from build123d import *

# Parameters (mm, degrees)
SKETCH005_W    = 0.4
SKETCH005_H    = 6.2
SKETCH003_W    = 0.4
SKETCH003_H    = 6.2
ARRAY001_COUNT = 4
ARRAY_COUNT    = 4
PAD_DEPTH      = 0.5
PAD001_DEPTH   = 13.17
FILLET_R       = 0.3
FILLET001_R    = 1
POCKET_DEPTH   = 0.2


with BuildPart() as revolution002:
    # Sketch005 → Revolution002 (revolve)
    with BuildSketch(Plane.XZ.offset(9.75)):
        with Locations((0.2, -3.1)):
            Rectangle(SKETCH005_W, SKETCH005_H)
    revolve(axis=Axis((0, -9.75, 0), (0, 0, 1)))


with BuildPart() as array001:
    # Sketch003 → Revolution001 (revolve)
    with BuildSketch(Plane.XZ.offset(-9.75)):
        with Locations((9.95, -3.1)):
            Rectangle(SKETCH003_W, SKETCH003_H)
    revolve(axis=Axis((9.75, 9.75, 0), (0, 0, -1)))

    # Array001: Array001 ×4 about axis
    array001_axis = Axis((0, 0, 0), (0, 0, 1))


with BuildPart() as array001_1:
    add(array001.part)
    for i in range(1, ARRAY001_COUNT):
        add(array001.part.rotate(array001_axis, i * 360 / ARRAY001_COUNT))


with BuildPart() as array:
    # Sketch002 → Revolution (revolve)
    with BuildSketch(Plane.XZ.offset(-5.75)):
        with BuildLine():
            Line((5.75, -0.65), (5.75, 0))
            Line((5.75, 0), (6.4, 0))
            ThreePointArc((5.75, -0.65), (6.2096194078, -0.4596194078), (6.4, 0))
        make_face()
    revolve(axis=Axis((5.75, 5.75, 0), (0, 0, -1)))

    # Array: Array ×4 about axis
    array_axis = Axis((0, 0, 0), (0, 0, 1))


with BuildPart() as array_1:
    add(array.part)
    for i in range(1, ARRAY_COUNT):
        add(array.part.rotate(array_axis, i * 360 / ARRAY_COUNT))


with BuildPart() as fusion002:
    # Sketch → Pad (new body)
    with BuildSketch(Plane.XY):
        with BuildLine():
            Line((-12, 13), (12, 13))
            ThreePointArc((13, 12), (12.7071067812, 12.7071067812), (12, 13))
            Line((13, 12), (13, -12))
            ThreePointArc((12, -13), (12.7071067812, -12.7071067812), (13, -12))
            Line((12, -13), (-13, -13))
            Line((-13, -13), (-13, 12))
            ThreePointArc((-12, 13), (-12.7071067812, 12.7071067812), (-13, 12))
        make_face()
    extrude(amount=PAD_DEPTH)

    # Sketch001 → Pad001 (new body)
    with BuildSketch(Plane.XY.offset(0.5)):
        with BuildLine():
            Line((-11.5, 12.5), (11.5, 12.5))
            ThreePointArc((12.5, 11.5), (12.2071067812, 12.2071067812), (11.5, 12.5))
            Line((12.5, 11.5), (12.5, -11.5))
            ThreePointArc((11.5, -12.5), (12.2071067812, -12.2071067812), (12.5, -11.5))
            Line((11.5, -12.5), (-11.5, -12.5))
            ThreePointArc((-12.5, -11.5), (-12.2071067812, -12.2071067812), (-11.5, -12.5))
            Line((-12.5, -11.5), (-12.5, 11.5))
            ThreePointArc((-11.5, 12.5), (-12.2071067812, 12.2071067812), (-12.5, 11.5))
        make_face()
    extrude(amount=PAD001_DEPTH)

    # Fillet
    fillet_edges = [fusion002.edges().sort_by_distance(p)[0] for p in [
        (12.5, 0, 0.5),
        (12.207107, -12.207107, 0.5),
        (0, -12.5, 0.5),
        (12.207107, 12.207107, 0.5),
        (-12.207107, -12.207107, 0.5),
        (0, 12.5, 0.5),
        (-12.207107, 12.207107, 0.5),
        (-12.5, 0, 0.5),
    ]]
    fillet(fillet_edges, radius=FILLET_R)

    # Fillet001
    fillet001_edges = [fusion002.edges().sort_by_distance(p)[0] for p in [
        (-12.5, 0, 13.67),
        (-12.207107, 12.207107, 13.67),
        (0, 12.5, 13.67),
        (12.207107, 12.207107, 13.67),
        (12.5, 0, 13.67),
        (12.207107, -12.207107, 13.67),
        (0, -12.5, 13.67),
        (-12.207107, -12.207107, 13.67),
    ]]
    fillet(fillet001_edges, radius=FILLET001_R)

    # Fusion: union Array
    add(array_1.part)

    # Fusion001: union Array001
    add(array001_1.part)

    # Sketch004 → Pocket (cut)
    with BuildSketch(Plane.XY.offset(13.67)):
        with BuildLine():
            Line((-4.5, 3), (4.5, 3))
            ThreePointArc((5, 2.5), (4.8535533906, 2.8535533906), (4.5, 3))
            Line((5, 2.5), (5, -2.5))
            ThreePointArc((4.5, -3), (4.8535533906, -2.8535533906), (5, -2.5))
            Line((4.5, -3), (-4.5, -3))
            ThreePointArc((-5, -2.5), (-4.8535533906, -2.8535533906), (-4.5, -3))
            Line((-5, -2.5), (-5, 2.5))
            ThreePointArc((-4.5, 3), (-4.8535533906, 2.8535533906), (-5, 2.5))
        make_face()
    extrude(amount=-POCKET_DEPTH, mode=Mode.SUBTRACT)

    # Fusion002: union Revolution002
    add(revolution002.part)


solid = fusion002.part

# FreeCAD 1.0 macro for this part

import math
import FreeCAD as App
import Part
import Sketcher

V = App.Vector
Q = App.Units.Quantity


def edges_at(feature, points):
    """Names of the edges that pass closest to the given points."""
    edges = feature.Shape.Edges
    near = lambda p: min(range(len(edges)), key=lambda i: edges[i].distToShape(Part.Vertex(*p))[0])
    return sorted({f"Edge{near(p) + 1}" for p in points})

doc = App.newDocument("Part")
body = doc.addObject("PartDesign::Body", "Body")

# Sketch on XZ plane
sketch1 = body.newObject("Sketcher::SketchObject", "Sketch")
sketch1.AttachmentSupport = (doc.getObject("XZ_Plane"), [""])
sketch1.MapMode = "FlatFace"
sketch1.AttachmentOffset = App.Placement(V(0, 0, 9.75), App.Rotation())
sketch1.addGeometry(Part.LineSegment(V(0, 0, 0), V(0, -6.2, 0)), False)
sketch1.addGeometry(Part.LineSegment(V(0, -6.2, 0), V(0.4, -6.2, 0)), False)
sketch1.addGeometry(Part.LineSegment(V(0.4, -6.2, 0), V(0.4, 0, 0)), False)
sketch1.addGeometry(Part.LineSegment(V(0.4, 0, 0), V(0, 0, 0)), False)
sketch1.addConstraint(Sketcher.Constraint("Coincident", 0, 2, 1, 1))
sketch1.addConstraint(Sketcher.Constraint("Coincident", 1, 2, 2, 1))
sketch1.addConstraint(Sketcher.Constraint("Coincident", 2, 2, 3, 1))
sketch1.addConstraint(Sketcher.Constraint("Coincident", 3, 2, 0, 1))
sketch1.addConstraint(Sketcher.Constraint("Vertical", 0))
sketch1.addConstraint(Sketcher.Constraint("Horizontal", 1))
sketch1.addConstraint(Sketcher.Constraint("Vertical", 2))
sketch1.addConstraint(Sketcher.Constraint("Horizontal", 3))
sketch1.addConstraint(Sketcher.Constraint("Coincident", 3, 2, -1, 1))
sketch1.addConstraint(Sketcher.Constraint("DistanceX", 1, 1, 1, 2, Q("0.4 mm")))
sketch1.addConstraint(Sketcher.Constraint("DistanceY", 0, 2, 0, 1, Q("6.2 mm")))
revolution = body.newObject("PartDesign::Revolution", "Revolution")
revolution.Profile = sketch1
revolution.ReferenceAxis = (sketch1, ["V_Axis"])
revolution.Angle = 360
body2 = doc.addObject("PartDesign::Body", "Body001")

# Sketch on XZ plane
sketch2 = body2.newObject("Sketcher::SketchObject", "Sketch001")
sketch2.AttachmentSupport = (doc.getObject("XZ_Plane001"), [""])
sketch2.MapMode = "FlatFace"
sketch2.AttachmentOffset = App.Placement(V(0, 0, -9.75), App.Rotation())
sketch2.addGeometry(Part.LineSegment(V(9.75, 0, 0), V(9.75, -6.2, 0)), False)
sketch2.addGeometry(Part.LineSegment(V(9.75, -6.2, 0), V(10.15, -6.2, 0)), False)
sketch2.addGeometry(Part.LineSegment(V(10.15, -6.2, 0), V(10.15, 0, 0)), False)
sketch2.addGeometry(Part.LineSegment(V(10.15, 0, 0), V(9.75, 0, 0)), False)
sketch2.addGeometry(Part.LineSegment(V(9.75, 0, 0), V(9.75, -6.2, 0)), True)  # axis
sketch2.addConstraint(Sketcher.Constraint("Coincident", 0, 2, 1, 1))
sketch2.addConstraint(Sketcher.Constraint("Coincident", 1, 2, 2, 1))
sketch2.addConstraint(Sketcher.Constraint("Coincident", 2, 2, 3, 1))
sketch2.addConstraint(Sketcher.Constraint("Coincident", 3, 2, 0, 1))
sketch2.addConstraint(Sketcher.Constraint("Vertical", 0))
sketch2.addConstraint(Sketcher.Constraint("Horizontal", 1))
sketch2.addConstraint(Sketcher.Constraint("Vertical", 2))
sketch2.addConstraint(Sketcher.Constraint("Horizontal", 3))
sketch2.addConstraint(Sketcher.Constraint("Vertical", 4))
sketch2.addConstraint(Sketcher.Constraint("Coincident", 4, 1, 3, 2))
sketch2.addConstraint(Sketcher.Constraint("PointOnObject", 2, 2, -1))
sketch2.addConstraint(Sketcher.Constraint("Horizontal", 1, 2, 4, 2))
sketch2.addConstraint(Sketcher.Constraint("DistanceX", 1, 1, 1, 2, Q("0.4 mm")))
sketch2.addConstraint(Sketcher.Constraint("DistanceY", 0, 2, 0, 1, Q("6.2 mm")))
sketch2.addConstraint(Sketcher.Constraint("DistanceX", -1, 1, 0, 2, Q("9.75 mm")))
revolution2 = body2.newObject("PartDesign::Revolution", "Revolution001")
revolution2.Profile = sketch2
revolution2.ReferenceAxis = (sketch2, ["Axis0"])
revolution2.Angle = 360
body3 = doc.addObject("PartDesign::Body", "Body002")
body3.AllowCompound = True
doc.recompute()

body3.BaseFeature = body2
doc.recompute()

body4 = doc.addObject("PartDesign::Body", "Body003")
body4.BaseFeature = body2
body4.Placement = App.Placement(V(0, 0, 0), App.Rotation(V(0, 0, 1), 90))
boolean = body3.newObject("PartDesign::Boolean", "Boolean")
boolean.Type = "Fuse"
boolean.addObjects([body4])
doc.recompute()

body5 = doc.addObject("PartDesign::Body", "Body004")
body5.BaseFeature = body2
body5.Placement = App.Placement(V(0, 0, 0), App.Rotation(V(0, 0, 1), 180))
boolean2 = body3.newObject("PartDesign::Boolean", "Boolean001")
boolean2.Type = "Fuse"
boolean2.addObjects([body5])
doc.recompute()

body2.Placement = App.Placement(V(0, 0, 0), App.Rotation(V(0, 0, 1), 270))
boolean3 = body3.newObject("PartDesign::Boolean", "Boolean002")
boolean3.Type = "Fuse"
boolean3.addObjects([body2])
body6 = doc.addObject("PartDesign::Body", "Body005")

# Sketch on XZ plane
sketch3 = body6.newObject("Sketcher::SketchObject", "Sketch002")
sketch3.AttachmentSupport = (doc.getObject("XZ_Plane005"), [""])
sketch3.MapMode = "FlatFace"
sketch3.AttachmentOffset = App.Placement(V(0, 0, -5.75), App.Rotation())
sketch3.addGeometry(Part.LineSegment(V(5.8, 0, 0), V(5.8, -0.7, 0)), False)
sketch3.addGeometry(Part.ArcOfCircle(Part.Circle(V(5.8, 0, 0), V(0, 0, 1), 0.7), math.radians(-90), math.radians(0)), False)
sketch3.addGeometry(Part.LineSegment(V(6.4, 0, 0), V(5.8, 0, 0)), False)
sketch3.addGeometry(Part.LineSegment(V(5.8, 0, 0), V(5.8, -0.7, 0)), True)  # axis
sketch3.addConstraint(Sketcher.Constraint("Coincident", 0, 2, 1, 1))
sketch3.addConstraint(Sketcher.Constraint("Coincident", 1, 2, 2, 1))
sketch3.addConstraint(Sketcher.Constraint("Coincident", 2, 2, 0, 1))
sketch3.addConstraint(Sketcher.Constraint("Vertical", 0))
sketch3.addConstraint(Sketcher.Constraint("Horizontal", 2))
sketch3.addConstraint(Sketcher.Constraint("Vertical", 3))
sketch3.addConstraint(Sketcher.Constraint("Coincident", 2, 2, 1, 3))
sketch3.addConstraint(Sketcher.Constraint("Coincident", 3, 1, 1, 3))
sketch3.addConstraint(Sketcher.Constraint("PointOnObject", 1, 3, -1))
sketch3.addConstraint(Sketcher.Constraint("Equal", 0, 3))
sketch3.addConstraint(Sketcher.Constraint("Radius", 1, Q("0.65 mm")))
sketch3.addConstraint(Sketcher.Constraint("DistanceX", -1, 1, 1, 2, Q("6.4 mm")))
revolution3 = body6.newObject("PartDesign::Revolution", "Revolution002")
revolution3.Profile = sketch3
revolution3.ReferenceAxis = (sketch3, ["Axis0"])
revolution3.Angle = 360
body7 = doc.addObject("PartDesign::Body", "Body006")
body7.AllowCompound = True
doc.recompute()

body7.BaseFeature = body6
doc.recompute()

body8 = doc.addObject("PartDesign::Body", "Body007")
body8.BaseFeature = body6
body8.Placement = App.Placement(V(0, 0, 0), App.Rotation(V(0, 0, 1), 90))
boolean4 = body7.newObject("PartDesign::Boolean", "Boolean003")
boolean4.Type = "Fuse"
boolean4.addObjects([body8])
doc.recompute()

body9 = doc.addObject("PartDesign::Body", "Body008")
body9.BaseFeature = body6
body9.Placement = App.Placement(V(0, 0, 0), App.Rotation(V(0, 0, 1), 180))
boolean5 = body7.newObject("PartDesign::Boolean", "Boolean004")
boolean5.Type = "Fuse"
boolean5.addObjects([body9])
doc.recompute()

body6.Placement = App.Placement(V(0, 0, 0), App.Rotation(V(0, 0, 1), 270))
boolean6 = body7.newObject("PartDesign::Boolean", "Boolean005")
boolean6.Type = "Fuse"
boolean6.addObjects([body6])
body10 = doc.addObject("PartDesign::Body", "Body009")

# Sketch on XY plane
sketch4 = body10.newObject("Sketcher::SketchObject", "Sketch003")
sketch4.AttachmentSupport = (doc.getObject("XY_Plane009"), [""])
sketch4.MapMode = "FlatFace"
sketch4.addGeometry(Part.LineSegment(V(12, 13, 0), V(-12, 13, 0)), False)
sketch4.addGeometry(Part.ArcOfCircle(Part.Circle(V(-12, 12, 0), V(0, 0, 1), 1), math.radians(90), math.radians(180)), False)
sketch4.addGeometry(Part.LineSegment(V(-13, 12, 0), V(-13, -13, 0)), False)
sketch4.addGeometry(Part.LineSegment(V(-13, -13, 0), V(12, -13, 0)), False)
sketch4.addGeometry(Part.ArcOfCircle(Part.Circle(V(12, -12, 0), V(0, 0, 1), 1), math.radians(-90), math.radians(0)), False)
sketch4.addGeometry(Part.LineSegment(V(13, -12, 0), V(13, 12, 0)), False)
sketch4.addGeometry(Part.ArcOfCircle(Part.Circle(V(12, 12, 0), V(0, 0, 1), 1), math.radians(0), math.radians(90)), False)
sketch4.addConstraint(Sketcher.Constraint("Tangent", 0, 2, 1, 1))
sketch4.addConstraint(Sketcher.Constraint("Tangent", 1, 2, 2, 1))
sketch4.addConstraint(Sketcher.Constraint("Coincident", 2, 2, 3, 1))
sketch4.addConstraint(Sketcher.Constraint("Tangent", 3, 2, 4, 1))
sketch4.addConstraint(Sketcher.Constraint("Tangent", 4, 2, 5, 1))
sketch4.addConstraint(Sketcher.Constraint("Tangent", 5, 2, 6, 1))
sketch4.addConstraint(Sketcher.Constraint("Tangent", 6, 2, 0, 1))
sketch4.addConstraint(Sketcher.Constraint("Horizontal", 0))
sketch4.addConstraint(Sketcher.Constraint("Vertical", 2))
sketch4.addConstraint(Sketcher.Constraint("Horizontal", 3))
sketch4.addConstraint(Sketcher.Constraint("Vertical", 5))
sketch4.addConstraint(Sketcher.Constraint("Equal", 1, 4))
sketch4.addConstraint(Sketcher.Constraint("Equal", 4, 6))
sketch4.addConstraint(Sketcher.Constraint("Symmetric", 1, 3, 4, 3, -1, 1))
sketch4.addConstraint(Sketcher.Constraint("Equal", 3, 2))
sketch4.addConstraint(Sketcher.Constraint("Radius", 1, Q("1 mm")))
sketch4.addConstraint(Sketcher.Constraint("DistanceX", 0, 2, 0, 1, Q("24 mm")))
pad1 = body10.newObject("PartDesign::Pad", "Pad")
pad1.Profile = sketch4
pad1.Length = 0.5

# Sketch on XY plane
sketch5 = body10.newObject("Sketcher::SketchObject", "Sketch004")
sketch5.AttachmentSupport = (doc.getObject("XY_Plane009"), [""])
sketch5.MapMode = "FlatFace"
sketch5.AttachmentOffset = App.Placement(V(0, 0, 0.5), App.Rotation())
sketch5.addGeometry(Part.LineSegment(V(11.5, 12.5, 0), V(-11.5, 12.5, 0)), False)
sketch5.addGeometry(Part.ArcOfCircle(Part.Circle(V(-11.5, 11.5, 0), V(0, 0, 1), 1), math.radians(90), math.radians(180)), False)
sketch5.addGeometry(Part.LineSegment(V(-12.5, 11.5, 0), V(-12.5, -11.5, 0)), False)
sketch5.addGeometry(Part.ArcOfCircle(Part.Circle(V(-11.5, -11.5, 0), V(0, 0, 1), 1), math.radians(180), math.radians(270)), False)
sketch5.addGeometry(Part.LineSegment(V(-11.5, -12.5, 0), V(11.5, -12.5, 0)), False)
sketch5.addGeometry(Part.ArcOfCircle(Part.Circle(V(11.5, -11.5, 0), V(0, 0, 1), 1), math.radians(-90), math.radians(0)), False)
sketch5.addGeometry(Part.LineSegment(V(12.5, -11.5, 0), V(12.5, 11.5, 0)), False)
sketch5.addGeometry(Part.ArcOfCircle(Part.Circle(V(11.5, 11.5, 0), V(0, 0, 1), 1), math.radians(0), math.radians(90)), False)
sketch5.addConstraint(Sketcher.Constraint("Tangent", 0, 2, 1, 1))
sketch5.addConstraint(Sketcher.Constraint("Tangent", 1, 2, 2, 1))
sketch5.addConstraint(Sketcher.Constraint("Tangent", 2, 2, 3, 1))
sketch5.addConstraint(Sketcher.Constraint("Tangent", 3, 2, 4, 1))
sketch5.addConstraint(Sketcher.Constraint("Tangent", 4, 2, 5, 1))
sketch5.addConstraint(Sketcher.Constraint("Tangent", 5, 2, 6, 1))
sketch5.addConstraint(Sketcher.Constraint("Tangent", 6, 2, 7, 1))
sketch5.addConstraint(Sketcher.Constraint("Tangent", 7, 2, 0, 1))
sketch5.addConstraint(Sketcher.Constraint("Horizontal", 0))
sketch5.addConstraint(Sketcher.Constraint("Vertical", 2))
sketch5.addConstraint(Sketcher.Constraint("Horizontal", 4))
sketch5.addConstraint(Sketcher.Constraint("Vertical", 6))
sketch5.addConstraint(Sketcher.Constraint("Equal", 1, 3))
sketch5.addConstraint(Sketcher.Constraint("Equal", 3, 5))
sketch5.addConstraint(Sketcher.Constraint("Equal", 5, 7))
sketch5.addConstraint(Sketcher.Constraint("Symmetric", 1, 3, 5, 3, -1, 1))
sketch5.addConstraint(Sketcher.Constraint("Equal", 4, 2))
sketch5.addConstraint(Sketcher.Constraint("Radius", 1, Q("1 mm")))
sketch5.addConstraint(Sketcher.Constraint("DistanceX", 0, 2, 0, 1, Q("23 mm")))
pad2 = body10.newObject("PartDesign::Pad", "Pad001")
pad2.Profile = sketch5
pad2.Length = 13.17
doc.recompute()

fillet = body10.newObject("PartDesign::Fillet", "Fillet")
fillet.Base = (pad2, edges_at(pad2, [
    (12.5, 0, 0.5),
    (12.207, -12.207, 0.5),
    (0, -12.5, 0.5),
    (12.207, 12.207, 0.5),
    (-12.207, -12.207, 0.5),
    (0, 12.5, 0.5),
    (-12.207, 12.207, 0.5),
    (-12.5, 0, 0.5),
]))
fillet.Radius = 0.3
doc.recompute()

fillet2 = body10.newObject("PartDesign::Fillet", "Fillet001")
fillet2.Base = (fillet, edges_at(fillet, [
    (-12.5, 0, 13.67),
    (-12.207, 12.207, 13.67),
    (0, 12.5, 13.67),
    (12.207, 12.207, 13.67),
    (12.5, 0, 13.67),
    (12.207, -12.207, 13.67),
    (0, -12.5, 13.67),
    (-12.207, -12.207, 13.67),
]))
fillet2.Radius = 1
doc.recompute()

boolean7 = body10.newObject("PartDesign::Boolean", "Boolean006")
boolean7.Type = "Fuse"
boolean7.addObjects([body7])
doc.recompute()

boolean8 = body10.newObject("PartDesign::Boolean", "Boolean007")
boolean8.Type = "Fuse"
boolean8.addObjects([body3])

# Sketch on XY plane
sketch6 = body10.newObject("Sketcher::SketchObject", "Sketch005")
sketch6.AttachmentSupport = (doc.getObject("XY_Plane009"), [""])
sketch6.MapMode = "FlatFace"
sketch6.AttachmentOffset = App.Placement(V(0, 0, 13.67), App.Rotation())
sketch6.addGeometry(Part.LineSegment(V(4.5, 3, 0), V(-4.5, 3, 0)), False)
sketch6.addGeometry(Part.ArcOfCircle(Part.Circle(V(-4.5, 2.5, 0), V(0, 0, 1), 0.5), math.radians(90), math.radians(180)), False)
sketch6.addGeometry(Part.LineSegment(V(-5, 2.5, 0), V(-5, -2.5, 0)), False)
sketch6.addGeometry(Part.ArcOfCircle(Part.Circle(V(-4.5, -2.5, 0), V(0, 0, 1), 0.5), math.radians(180), math.radians(270)), False)
sketch6.addGeometry(Part.LineSegment(V(-4.5, -3, 0), V(4.5, -3, 0)), False)
sketch6.addGeometry(Part.ArcOfCircle(Part.Circle(V(4.5, -2.5, 0), V(0, 0, 1), 0.5), math.radians(-90), math.radians(0)), False)
sketch6.addGeometry(Part.LineSegment(V(5, -2.5, 0), V(5, 2.5, 0)), False)
sketch6.addGeometry(Part.ArcOfCircle(Part.Circle(V(4.5, 2.5, 0), V(0, 0, 1), 0.5), math.radians(0), math.radians(90)), False)
sketch6.addConstraint(Sketcher.Constraint("Tangent", 0, 2, 1, 1))
sketch6.addConstraint(Sketcher.Constraint("Tangent", 1, 2, 2, 1))
sketch6.addConstraint(Sketcher.Constraint("Tangent", 2, 2, 3, 1))
sketch6.addConstraint(Sketcher.Constraint("Tangent", 3, 2, 4, 1))
sketch6.addConstraint(Sketcher.Constraint("Tangent", 4, 2, 5, 1))
sketch6.addConstraint(Sketcher.Constraint("Tangent", 5, 2, 6, 1))
sketch6.addConstraint(Sketcher.Constraint("Tangent", 6, 2, 7, 1))
sketch6.addConstraint(Sketcher.Constraint("Tangent", 7, 2, 0, 1))
sketch6.addConstraint(Sketcher.Constraint("Horizontal", 0))
sketch6.addConstraint(Sketcher.Constraint("Vertical", 2))
sketch6.addConstraint(Sketcher.Constraint("Horizontal", 4))
sketch6.addConstraint(Sketcher.Constraint("Vertical", 6))
sketch6.addConstraint(Sketcher.Constraint("Equal", 1, 3))
sketch6.addConstraint(Sketcher.Constraint("Equal", 3, 5))
sketch6.addConstraint(Sketcher.Constraint("Equal", 5, 7))
sketch6.addConstraint(Sketcher.Constraint("Symmetric", 1, 3, 5, 3, -1, 1))
sketch6.addConstraint(Sketcher.Constraint("Radius", 1, Q("0.5 mm")))
sketch6.addConstraint(Sketcher.Constraint("DistanceX", 0, 2, 0, 1, Q("9 mm")))
sketch6.addConstraint(Sketcher.Constraint("DistanceY", 2, 2, 2, 1, Q("5 mm")))
pocket1 = body10.newObject("PartDesign::Pocket", "Pocket")
pocket1.Profile = sketch6
pocket1.Length = 0.2
doc.recompute()

boolean9 = body10.newObject("PartDesign::Boolean", "Boolean008")
boolean9.Type = "Fuse"
boolean9.addObjects([body])

doc.recompute()
